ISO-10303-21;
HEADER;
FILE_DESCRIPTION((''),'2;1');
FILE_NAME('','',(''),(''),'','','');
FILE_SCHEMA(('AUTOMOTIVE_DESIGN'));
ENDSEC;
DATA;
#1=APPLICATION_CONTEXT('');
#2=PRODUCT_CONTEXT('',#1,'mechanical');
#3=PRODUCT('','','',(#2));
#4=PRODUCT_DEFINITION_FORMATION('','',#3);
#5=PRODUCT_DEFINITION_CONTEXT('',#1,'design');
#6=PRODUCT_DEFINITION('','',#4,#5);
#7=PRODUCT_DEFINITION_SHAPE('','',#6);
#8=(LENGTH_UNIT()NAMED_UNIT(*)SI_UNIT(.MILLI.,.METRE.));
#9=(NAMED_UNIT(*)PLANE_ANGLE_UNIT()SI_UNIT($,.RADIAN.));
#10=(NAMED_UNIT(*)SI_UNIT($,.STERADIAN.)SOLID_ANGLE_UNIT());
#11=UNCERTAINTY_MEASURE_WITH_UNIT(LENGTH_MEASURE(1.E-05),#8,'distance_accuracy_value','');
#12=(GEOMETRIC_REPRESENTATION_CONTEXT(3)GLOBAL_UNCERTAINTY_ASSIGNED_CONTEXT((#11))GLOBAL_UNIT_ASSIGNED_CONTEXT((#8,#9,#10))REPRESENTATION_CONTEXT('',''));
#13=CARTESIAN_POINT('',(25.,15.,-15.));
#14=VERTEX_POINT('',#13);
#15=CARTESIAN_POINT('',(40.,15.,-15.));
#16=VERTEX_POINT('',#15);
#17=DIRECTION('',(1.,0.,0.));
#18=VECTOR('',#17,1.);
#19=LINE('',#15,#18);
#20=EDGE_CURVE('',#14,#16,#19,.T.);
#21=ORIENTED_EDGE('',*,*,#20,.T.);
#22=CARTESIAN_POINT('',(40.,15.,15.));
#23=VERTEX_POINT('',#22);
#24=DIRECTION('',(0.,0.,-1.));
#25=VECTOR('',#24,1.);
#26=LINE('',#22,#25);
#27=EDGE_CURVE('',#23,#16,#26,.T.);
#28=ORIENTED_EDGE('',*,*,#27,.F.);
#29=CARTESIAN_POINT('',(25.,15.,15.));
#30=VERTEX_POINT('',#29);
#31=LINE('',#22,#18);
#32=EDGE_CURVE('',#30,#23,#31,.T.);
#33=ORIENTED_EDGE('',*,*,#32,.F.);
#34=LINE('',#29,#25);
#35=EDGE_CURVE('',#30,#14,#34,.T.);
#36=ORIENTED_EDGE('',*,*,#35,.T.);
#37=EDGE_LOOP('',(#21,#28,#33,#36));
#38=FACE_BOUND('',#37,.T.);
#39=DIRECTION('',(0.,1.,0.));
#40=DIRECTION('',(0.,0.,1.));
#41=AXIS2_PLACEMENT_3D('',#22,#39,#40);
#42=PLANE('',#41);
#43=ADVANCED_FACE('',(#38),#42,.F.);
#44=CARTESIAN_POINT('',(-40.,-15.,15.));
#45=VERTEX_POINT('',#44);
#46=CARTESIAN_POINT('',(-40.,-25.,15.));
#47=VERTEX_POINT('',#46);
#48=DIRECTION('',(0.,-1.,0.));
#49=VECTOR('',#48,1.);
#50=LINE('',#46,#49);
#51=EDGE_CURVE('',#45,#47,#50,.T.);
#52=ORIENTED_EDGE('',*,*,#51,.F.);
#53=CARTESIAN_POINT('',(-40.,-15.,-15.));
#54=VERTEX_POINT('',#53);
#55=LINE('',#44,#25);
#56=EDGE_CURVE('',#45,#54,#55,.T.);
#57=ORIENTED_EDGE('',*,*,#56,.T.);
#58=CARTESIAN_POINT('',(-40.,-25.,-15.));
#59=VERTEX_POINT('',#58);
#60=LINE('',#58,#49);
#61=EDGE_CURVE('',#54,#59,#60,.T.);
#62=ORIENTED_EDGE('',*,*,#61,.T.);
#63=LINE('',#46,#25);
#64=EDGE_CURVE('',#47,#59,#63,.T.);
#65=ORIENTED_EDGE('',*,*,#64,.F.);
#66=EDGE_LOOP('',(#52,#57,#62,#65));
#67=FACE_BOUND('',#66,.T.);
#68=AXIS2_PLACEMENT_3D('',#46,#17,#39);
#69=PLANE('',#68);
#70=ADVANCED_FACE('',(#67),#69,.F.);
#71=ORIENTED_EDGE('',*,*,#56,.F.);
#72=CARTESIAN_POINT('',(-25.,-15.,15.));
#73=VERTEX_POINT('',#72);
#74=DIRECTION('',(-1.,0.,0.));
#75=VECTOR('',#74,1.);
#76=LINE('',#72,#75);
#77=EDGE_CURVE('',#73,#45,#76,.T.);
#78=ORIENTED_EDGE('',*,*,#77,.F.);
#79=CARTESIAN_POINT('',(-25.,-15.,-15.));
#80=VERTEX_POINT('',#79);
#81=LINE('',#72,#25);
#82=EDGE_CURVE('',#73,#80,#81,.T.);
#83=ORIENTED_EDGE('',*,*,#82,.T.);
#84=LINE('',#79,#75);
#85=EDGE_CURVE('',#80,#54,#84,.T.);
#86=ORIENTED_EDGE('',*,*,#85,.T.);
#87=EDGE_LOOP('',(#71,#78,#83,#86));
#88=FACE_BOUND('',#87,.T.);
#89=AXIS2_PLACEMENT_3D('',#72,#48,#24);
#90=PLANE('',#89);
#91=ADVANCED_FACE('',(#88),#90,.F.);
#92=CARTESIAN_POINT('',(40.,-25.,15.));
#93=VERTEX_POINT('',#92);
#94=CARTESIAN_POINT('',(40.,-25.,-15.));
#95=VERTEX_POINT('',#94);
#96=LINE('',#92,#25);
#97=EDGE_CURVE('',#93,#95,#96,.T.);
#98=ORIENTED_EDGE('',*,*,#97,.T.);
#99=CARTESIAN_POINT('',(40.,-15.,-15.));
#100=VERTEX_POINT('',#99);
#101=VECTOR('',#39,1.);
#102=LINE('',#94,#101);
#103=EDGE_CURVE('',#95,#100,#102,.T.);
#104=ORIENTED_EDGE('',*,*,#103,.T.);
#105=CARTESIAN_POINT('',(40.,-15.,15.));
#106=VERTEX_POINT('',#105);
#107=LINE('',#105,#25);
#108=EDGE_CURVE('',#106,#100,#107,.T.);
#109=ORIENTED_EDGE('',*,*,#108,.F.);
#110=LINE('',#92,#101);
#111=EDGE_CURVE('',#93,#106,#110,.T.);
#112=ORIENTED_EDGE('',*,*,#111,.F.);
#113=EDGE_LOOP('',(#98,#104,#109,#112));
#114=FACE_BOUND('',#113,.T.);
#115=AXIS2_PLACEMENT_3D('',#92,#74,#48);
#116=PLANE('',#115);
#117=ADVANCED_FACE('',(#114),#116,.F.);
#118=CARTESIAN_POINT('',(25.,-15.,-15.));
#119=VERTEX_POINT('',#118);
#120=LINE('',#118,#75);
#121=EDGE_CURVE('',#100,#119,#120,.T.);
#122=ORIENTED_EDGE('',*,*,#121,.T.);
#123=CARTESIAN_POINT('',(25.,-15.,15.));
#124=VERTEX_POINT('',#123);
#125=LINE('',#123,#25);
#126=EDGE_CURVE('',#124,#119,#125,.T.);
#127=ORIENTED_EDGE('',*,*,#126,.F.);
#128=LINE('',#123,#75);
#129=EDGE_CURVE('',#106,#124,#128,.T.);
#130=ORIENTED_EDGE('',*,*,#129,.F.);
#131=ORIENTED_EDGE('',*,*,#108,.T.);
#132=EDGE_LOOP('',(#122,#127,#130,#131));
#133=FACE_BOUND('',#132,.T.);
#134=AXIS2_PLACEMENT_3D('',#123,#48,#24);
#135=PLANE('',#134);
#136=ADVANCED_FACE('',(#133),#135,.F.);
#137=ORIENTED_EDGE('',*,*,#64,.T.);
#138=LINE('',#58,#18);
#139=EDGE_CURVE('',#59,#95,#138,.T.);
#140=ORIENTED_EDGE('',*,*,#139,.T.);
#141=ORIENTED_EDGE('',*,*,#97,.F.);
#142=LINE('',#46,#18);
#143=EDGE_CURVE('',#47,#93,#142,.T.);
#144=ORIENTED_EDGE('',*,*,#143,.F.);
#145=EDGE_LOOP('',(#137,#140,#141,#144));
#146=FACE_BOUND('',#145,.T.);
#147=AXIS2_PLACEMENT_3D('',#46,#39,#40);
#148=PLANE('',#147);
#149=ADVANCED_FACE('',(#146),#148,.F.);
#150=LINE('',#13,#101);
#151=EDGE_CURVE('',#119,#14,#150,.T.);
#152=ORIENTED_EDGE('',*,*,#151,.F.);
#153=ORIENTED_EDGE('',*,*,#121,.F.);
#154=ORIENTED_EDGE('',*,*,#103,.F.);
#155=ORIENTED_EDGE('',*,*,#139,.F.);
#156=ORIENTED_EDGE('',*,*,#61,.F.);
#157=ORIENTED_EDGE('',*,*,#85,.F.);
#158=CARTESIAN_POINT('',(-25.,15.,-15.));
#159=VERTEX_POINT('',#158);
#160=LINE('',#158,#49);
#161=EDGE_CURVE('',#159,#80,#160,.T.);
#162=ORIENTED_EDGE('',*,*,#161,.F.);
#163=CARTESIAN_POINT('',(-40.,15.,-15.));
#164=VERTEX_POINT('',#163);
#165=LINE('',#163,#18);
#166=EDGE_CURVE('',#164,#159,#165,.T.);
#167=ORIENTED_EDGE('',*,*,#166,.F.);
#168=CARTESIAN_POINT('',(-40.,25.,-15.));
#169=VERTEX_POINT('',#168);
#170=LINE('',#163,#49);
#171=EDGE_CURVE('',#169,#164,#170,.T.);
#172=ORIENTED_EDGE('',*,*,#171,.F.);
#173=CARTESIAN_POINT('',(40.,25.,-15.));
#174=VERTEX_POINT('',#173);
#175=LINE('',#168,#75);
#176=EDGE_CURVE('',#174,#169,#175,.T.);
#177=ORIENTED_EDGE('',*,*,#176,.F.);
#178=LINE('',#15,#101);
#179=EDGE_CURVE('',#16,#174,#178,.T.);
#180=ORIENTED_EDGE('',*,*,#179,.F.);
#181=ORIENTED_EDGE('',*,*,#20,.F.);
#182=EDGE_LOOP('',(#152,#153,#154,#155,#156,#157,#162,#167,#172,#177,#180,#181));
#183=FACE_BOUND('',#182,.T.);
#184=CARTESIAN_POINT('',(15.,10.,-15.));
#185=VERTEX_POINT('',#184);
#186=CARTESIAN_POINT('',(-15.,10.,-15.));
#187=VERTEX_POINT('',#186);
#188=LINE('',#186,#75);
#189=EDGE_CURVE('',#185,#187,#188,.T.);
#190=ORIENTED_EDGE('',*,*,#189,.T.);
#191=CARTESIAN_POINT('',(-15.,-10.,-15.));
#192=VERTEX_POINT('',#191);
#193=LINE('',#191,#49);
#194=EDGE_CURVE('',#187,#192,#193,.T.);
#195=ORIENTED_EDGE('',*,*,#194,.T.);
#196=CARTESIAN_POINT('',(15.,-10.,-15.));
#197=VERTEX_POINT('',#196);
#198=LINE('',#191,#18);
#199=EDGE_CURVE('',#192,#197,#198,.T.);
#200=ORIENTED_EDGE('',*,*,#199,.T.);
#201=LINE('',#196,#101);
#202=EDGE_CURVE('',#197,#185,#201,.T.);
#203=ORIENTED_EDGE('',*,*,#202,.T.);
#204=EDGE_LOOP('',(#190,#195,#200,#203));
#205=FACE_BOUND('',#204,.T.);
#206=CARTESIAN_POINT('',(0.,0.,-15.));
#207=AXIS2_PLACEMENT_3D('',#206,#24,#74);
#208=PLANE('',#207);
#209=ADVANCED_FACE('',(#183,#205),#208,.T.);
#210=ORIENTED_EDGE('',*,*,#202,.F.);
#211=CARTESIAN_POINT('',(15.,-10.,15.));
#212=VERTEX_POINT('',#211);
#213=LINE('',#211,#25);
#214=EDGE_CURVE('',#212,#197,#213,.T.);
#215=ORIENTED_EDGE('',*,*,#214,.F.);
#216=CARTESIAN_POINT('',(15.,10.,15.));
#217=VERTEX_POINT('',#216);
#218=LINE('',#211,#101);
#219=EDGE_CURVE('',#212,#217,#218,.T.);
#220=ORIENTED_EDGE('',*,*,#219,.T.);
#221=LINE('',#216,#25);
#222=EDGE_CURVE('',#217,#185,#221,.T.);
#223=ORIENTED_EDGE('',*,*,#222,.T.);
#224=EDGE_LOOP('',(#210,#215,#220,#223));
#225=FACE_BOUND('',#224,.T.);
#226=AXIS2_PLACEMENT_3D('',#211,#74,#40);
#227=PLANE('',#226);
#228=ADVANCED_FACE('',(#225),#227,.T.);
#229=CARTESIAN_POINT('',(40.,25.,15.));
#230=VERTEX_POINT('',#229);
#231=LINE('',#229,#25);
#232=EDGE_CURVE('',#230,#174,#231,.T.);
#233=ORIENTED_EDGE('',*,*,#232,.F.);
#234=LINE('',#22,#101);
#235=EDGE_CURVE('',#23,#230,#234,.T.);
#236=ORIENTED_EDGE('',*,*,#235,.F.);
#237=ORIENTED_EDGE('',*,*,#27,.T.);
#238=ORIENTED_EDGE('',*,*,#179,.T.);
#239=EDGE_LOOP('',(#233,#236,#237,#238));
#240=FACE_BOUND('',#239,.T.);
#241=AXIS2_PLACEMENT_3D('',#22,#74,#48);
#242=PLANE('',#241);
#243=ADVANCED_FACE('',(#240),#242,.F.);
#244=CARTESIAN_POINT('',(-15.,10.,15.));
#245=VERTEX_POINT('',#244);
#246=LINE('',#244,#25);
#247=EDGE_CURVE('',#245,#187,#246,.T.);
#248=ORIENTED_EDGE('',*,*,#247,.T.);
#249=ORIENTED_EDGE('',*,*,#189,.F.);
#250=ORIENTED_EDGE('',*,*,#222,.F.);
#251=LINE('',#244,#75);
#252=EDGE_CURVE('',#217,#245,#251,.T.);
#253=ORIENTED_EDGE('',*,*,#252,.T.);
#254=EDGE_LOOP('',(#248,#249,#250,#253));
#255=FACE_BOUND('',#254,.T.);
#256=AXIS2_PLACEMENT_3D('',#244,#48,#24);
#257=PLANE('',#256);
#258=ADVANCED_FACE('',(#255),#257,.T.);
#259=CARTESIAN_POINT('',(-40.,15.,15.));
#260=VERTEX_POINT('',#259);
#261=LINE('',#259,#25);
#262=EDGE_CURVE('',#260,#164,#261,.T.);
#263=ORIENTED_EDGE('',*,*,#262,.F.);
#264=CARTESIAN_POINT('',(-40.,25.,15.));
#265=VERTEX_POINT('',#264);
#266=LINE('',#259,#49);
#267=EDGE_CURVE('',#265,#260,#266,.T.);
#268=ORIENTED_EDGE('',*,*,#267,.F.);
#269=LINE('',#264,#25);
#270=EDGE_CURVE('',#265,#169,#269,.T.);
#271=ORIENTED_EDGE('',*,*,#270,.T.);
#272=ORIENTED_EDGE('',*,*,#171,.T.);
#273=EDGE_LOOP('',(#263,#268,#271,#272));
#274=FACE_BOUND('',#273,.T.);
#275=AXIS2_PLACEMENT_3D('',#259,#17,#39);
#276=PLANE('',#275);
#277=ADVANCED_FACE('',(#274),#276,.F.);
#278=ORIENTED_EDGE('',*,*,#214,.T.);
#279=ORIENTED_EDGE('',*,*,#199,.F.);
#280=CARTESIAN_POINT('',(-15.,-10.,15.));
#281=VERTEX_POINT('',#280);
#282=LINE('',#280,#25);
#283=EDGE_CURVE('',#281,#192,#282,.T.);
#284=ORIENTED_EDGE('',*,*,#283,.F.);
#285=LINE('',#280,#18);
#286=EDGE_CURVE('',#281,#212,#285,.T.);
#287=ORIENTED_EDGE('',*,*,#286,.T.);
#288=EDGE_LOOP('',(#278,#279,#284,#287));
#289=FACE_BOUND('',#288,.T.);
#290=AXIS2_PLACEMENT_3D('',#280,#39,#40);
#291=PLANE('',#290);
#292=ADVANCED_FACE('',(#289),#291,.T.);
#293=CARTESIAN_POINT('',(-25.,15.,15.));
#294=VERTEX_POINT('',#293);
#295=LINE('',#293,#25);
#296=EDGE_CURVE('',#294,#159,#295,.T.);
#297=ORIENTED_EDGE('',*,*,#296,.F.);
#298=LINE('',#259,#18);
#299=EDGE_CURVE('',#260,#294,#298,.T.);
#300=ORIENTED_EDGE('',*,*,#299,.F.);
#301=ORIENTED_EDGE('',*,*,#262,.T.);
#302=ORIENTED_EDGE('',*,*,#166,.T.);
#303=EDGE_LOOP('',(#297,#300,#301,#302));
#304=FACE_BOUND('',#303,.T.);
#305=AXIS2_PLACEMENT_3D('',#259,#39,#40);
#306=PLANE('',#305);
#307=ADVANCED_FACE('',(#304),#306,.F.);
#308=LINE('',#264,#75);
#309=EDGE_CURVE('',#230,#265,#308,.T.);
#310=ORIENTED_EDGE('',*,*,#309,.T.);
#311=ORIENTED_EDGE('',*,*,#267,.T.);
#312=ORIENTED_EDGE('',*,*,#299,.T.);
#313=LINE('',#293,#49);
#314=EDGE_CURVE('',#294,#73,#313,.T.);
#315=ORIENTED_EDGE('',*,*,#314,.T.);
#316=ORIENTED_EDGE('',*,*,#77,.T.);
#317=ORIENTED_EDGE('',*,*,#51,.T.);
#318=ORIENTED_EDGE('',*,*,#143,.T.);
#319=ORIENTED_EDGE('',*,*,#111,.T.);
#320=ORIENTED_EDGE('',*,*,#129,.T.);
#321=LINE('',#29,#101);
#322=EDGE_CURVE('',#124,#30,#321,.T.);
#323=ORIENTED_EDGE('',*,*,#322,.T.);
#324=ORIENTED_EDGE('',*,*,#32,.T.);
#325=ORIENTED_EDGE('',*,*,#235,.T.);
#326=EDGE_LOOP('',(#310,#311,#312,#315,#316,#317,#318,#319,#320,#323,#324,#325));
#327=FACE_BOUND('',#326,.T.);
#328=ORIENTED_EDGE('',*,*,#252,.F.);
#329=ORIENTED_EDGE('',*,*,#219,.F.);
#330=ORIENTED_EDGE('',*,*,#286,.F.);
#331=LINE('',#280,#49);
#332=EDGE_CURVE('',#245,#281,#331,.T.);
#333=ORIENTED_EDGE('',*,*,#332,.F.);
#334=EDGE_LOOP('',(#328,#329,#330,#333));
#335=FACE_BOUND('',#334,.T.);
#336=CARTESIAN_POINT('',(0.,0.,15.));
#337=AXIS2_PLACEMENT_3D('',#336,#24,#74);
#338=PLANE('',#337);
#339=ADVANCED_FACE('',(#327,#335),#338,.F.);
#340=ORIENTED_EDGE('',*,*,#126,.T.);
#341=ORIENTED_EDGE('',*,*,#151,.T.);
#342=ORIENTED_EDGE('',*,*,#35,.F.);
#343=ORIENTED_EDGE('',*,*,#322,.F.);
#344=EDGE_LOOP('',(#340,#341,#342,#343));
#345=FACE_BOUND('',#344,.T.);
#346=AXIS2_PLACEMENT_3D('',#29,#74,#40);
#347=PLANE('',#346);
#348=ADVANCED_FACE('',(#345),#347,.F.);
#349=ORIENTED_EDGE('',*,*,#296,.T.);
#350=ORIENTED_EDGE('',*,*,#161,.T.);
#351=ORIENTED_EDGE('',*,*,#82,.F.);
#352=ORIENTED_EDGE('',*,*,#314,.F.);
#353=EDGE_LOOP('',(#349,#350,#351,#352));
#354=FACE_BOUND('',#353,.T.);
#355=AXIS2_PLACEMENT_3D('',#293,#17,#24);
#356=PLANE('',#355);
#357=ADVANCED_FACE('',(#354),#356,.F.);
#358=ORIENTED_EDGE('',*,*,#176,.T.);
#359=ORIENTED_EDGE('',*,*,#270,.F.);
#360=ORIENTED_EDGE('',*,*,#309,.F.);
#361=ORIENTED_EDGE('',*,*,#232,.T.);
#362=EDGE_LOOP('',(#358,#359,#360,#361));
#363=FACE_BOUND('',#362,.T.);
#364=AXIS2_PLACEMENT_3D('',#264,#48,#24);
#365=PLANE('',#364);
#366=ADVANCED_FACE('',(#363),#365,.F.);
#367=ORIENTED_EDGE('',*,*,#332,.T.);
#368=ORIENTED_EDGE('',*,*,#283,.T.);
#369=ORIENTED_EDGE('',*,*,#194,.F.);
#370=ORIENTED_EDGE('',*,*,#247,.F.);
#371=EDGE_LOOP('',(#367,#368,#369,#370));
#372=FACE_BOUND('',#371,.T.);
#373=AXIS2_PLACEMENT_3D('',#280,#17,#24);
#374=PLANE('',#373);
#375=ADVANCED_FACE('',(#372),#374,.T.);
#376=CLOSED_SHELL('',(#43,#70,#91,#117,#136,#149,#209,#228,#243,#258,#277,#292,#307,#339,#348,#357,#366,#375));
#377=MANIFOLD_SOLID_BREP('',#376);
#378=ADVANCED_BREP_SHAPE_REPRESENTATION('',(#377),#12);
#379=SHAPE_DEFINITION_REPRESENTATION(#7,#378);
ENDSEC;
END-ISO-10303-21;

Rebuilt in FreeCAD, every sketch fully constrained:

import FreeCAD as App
import Part
import Sketcher

V = App.Vector


def add_polygon(sketch, points):
    """Adds a closed chain of lines whose ends are joined by coincident constraints."""
    first, n = sketch.GeometryCount, len(points)
    for a, b in zip(points, points[1:] + points[:1]):
        sketch.addGeometry(Part.LineSegment(App.Vector(*a, 0), App.Vector(*b, 0)), False)
    for i in range(n):
        sketch.addConstraint(Sketcher.Constraint("Coincident", first + i, 2, first + (i + 1) % n, 1))

doc = App.newDocument("Part")
body = doc.addObject("PartDesign::Body", "Body")

sketch1 = doc.addObject("Sketcher::SketchObject", "Sketch")
body.addObject(sketch1)
sketch1.AttachmentSupport = (doc.XY_Plane, [""])
sketch1.MapMode = "FlatFace"
add_polygon(sketch1, [(-40, 15), (-25, 15), (-25, -15), (-40, -15), (-40, -25), (40, -25), (40, -15), (25, -15), (25, 15), (40, 15), (40, 25), (-40, 25)])
add_polygon(sketch1, [(15, -10), (-15, -10), (-15, 10), (15, 10)])
sketch1.addConstraint(Sketcher.Constraint("Horizontal", 0))
sketch1.addConstraint(Sketcher.Constraint("Vertical", 1))
sketch1.addConstraint(Sketcher.Constraint("Horizontal", 2))
sketch1.addConstraint(Sketcher.Constraint("Vertical", 3))
sketch1.addConstraint(Sketcher.Constraint("Horizontal", 4))
sketch1.addConstraint(Sketcher.Constraint("Vertical", 5))
sketch1.addConstraint(Sketcher.Constraint("Horizontal", 6))
sketch1.addConstraint(Sketcher.Constraint("Vertical", 7))
sketch1.addConstraint(Sketcher.Constraint("Horizontal", 8))
sketch1.addConstraint(Sketcher.Constraint("Vertical", 9))
sketch1.addConstraint(Sketcher.Constraint("Horizontal", 10))
sketch1.addConstraint(Sketcher.Constraint("Vertical", 11))
sketch1.addConstraint(Sketcher.Constraint("Horizontal", 12))
sketch1.addConstraint(Sketcher.Constraint("Vertical", 13))
sketch1.addConstraint(Sketcher.Constraint("Horizontal", 14))
sketch1.addConstraint(Sketcher.Constraint("Vertical", 15))
sketch1.addConstraint(Sketcher.Constraint("Symmetric", 0, 2, 6, 2, -1, 1))
sketch1.addConstraint(Sketcher.Constraint("Symmetric", 2, 2, 8, 2, -1, 1))
sketch1.addConstraint(Sketcher.Constraint("Symmetric", 4, 2, 10, 2, -1, 1))
sketch1.addConstraint(Sketcher.Constraint("Symmetric", 12, 2, 14, 2, -1, 1))
sketch1.addConstraint(Sketcher.Constraint("Symmetric", 2, 2, 5, 2, -2))
sketch1.addConstraint(Sketcher.Constraint("Equal", 14, 1))
sketch1.addConstraint(Sketcher.Constraint("DistanceX", 0, 1, 0, 2, 15.0))
sketch1.addConstraint(Sketcher.Constraint("DistanceX", 4, 1, 4, 2, 80.0))
sketch1.addConstraint(Sketcher.Constraint("DistanceX", 12, 2, 12, 1, 30.0))
sketch1.addConstraint(Sketcher.Constraint("DistanceY", 3, 2, 3, 1, 10.0))
sketch1.addConstraint(Sketcher.Constraint("DistanceY", 13, 1, 13, 2, 20.0))
pad1 = doc.addObject("PartDesign::Pad", "Pad")
body.addObject(pad1)
pad1.Profile = sketch1
pad1.Length = 30
pad1.Midplane = True

doc.recompute()
